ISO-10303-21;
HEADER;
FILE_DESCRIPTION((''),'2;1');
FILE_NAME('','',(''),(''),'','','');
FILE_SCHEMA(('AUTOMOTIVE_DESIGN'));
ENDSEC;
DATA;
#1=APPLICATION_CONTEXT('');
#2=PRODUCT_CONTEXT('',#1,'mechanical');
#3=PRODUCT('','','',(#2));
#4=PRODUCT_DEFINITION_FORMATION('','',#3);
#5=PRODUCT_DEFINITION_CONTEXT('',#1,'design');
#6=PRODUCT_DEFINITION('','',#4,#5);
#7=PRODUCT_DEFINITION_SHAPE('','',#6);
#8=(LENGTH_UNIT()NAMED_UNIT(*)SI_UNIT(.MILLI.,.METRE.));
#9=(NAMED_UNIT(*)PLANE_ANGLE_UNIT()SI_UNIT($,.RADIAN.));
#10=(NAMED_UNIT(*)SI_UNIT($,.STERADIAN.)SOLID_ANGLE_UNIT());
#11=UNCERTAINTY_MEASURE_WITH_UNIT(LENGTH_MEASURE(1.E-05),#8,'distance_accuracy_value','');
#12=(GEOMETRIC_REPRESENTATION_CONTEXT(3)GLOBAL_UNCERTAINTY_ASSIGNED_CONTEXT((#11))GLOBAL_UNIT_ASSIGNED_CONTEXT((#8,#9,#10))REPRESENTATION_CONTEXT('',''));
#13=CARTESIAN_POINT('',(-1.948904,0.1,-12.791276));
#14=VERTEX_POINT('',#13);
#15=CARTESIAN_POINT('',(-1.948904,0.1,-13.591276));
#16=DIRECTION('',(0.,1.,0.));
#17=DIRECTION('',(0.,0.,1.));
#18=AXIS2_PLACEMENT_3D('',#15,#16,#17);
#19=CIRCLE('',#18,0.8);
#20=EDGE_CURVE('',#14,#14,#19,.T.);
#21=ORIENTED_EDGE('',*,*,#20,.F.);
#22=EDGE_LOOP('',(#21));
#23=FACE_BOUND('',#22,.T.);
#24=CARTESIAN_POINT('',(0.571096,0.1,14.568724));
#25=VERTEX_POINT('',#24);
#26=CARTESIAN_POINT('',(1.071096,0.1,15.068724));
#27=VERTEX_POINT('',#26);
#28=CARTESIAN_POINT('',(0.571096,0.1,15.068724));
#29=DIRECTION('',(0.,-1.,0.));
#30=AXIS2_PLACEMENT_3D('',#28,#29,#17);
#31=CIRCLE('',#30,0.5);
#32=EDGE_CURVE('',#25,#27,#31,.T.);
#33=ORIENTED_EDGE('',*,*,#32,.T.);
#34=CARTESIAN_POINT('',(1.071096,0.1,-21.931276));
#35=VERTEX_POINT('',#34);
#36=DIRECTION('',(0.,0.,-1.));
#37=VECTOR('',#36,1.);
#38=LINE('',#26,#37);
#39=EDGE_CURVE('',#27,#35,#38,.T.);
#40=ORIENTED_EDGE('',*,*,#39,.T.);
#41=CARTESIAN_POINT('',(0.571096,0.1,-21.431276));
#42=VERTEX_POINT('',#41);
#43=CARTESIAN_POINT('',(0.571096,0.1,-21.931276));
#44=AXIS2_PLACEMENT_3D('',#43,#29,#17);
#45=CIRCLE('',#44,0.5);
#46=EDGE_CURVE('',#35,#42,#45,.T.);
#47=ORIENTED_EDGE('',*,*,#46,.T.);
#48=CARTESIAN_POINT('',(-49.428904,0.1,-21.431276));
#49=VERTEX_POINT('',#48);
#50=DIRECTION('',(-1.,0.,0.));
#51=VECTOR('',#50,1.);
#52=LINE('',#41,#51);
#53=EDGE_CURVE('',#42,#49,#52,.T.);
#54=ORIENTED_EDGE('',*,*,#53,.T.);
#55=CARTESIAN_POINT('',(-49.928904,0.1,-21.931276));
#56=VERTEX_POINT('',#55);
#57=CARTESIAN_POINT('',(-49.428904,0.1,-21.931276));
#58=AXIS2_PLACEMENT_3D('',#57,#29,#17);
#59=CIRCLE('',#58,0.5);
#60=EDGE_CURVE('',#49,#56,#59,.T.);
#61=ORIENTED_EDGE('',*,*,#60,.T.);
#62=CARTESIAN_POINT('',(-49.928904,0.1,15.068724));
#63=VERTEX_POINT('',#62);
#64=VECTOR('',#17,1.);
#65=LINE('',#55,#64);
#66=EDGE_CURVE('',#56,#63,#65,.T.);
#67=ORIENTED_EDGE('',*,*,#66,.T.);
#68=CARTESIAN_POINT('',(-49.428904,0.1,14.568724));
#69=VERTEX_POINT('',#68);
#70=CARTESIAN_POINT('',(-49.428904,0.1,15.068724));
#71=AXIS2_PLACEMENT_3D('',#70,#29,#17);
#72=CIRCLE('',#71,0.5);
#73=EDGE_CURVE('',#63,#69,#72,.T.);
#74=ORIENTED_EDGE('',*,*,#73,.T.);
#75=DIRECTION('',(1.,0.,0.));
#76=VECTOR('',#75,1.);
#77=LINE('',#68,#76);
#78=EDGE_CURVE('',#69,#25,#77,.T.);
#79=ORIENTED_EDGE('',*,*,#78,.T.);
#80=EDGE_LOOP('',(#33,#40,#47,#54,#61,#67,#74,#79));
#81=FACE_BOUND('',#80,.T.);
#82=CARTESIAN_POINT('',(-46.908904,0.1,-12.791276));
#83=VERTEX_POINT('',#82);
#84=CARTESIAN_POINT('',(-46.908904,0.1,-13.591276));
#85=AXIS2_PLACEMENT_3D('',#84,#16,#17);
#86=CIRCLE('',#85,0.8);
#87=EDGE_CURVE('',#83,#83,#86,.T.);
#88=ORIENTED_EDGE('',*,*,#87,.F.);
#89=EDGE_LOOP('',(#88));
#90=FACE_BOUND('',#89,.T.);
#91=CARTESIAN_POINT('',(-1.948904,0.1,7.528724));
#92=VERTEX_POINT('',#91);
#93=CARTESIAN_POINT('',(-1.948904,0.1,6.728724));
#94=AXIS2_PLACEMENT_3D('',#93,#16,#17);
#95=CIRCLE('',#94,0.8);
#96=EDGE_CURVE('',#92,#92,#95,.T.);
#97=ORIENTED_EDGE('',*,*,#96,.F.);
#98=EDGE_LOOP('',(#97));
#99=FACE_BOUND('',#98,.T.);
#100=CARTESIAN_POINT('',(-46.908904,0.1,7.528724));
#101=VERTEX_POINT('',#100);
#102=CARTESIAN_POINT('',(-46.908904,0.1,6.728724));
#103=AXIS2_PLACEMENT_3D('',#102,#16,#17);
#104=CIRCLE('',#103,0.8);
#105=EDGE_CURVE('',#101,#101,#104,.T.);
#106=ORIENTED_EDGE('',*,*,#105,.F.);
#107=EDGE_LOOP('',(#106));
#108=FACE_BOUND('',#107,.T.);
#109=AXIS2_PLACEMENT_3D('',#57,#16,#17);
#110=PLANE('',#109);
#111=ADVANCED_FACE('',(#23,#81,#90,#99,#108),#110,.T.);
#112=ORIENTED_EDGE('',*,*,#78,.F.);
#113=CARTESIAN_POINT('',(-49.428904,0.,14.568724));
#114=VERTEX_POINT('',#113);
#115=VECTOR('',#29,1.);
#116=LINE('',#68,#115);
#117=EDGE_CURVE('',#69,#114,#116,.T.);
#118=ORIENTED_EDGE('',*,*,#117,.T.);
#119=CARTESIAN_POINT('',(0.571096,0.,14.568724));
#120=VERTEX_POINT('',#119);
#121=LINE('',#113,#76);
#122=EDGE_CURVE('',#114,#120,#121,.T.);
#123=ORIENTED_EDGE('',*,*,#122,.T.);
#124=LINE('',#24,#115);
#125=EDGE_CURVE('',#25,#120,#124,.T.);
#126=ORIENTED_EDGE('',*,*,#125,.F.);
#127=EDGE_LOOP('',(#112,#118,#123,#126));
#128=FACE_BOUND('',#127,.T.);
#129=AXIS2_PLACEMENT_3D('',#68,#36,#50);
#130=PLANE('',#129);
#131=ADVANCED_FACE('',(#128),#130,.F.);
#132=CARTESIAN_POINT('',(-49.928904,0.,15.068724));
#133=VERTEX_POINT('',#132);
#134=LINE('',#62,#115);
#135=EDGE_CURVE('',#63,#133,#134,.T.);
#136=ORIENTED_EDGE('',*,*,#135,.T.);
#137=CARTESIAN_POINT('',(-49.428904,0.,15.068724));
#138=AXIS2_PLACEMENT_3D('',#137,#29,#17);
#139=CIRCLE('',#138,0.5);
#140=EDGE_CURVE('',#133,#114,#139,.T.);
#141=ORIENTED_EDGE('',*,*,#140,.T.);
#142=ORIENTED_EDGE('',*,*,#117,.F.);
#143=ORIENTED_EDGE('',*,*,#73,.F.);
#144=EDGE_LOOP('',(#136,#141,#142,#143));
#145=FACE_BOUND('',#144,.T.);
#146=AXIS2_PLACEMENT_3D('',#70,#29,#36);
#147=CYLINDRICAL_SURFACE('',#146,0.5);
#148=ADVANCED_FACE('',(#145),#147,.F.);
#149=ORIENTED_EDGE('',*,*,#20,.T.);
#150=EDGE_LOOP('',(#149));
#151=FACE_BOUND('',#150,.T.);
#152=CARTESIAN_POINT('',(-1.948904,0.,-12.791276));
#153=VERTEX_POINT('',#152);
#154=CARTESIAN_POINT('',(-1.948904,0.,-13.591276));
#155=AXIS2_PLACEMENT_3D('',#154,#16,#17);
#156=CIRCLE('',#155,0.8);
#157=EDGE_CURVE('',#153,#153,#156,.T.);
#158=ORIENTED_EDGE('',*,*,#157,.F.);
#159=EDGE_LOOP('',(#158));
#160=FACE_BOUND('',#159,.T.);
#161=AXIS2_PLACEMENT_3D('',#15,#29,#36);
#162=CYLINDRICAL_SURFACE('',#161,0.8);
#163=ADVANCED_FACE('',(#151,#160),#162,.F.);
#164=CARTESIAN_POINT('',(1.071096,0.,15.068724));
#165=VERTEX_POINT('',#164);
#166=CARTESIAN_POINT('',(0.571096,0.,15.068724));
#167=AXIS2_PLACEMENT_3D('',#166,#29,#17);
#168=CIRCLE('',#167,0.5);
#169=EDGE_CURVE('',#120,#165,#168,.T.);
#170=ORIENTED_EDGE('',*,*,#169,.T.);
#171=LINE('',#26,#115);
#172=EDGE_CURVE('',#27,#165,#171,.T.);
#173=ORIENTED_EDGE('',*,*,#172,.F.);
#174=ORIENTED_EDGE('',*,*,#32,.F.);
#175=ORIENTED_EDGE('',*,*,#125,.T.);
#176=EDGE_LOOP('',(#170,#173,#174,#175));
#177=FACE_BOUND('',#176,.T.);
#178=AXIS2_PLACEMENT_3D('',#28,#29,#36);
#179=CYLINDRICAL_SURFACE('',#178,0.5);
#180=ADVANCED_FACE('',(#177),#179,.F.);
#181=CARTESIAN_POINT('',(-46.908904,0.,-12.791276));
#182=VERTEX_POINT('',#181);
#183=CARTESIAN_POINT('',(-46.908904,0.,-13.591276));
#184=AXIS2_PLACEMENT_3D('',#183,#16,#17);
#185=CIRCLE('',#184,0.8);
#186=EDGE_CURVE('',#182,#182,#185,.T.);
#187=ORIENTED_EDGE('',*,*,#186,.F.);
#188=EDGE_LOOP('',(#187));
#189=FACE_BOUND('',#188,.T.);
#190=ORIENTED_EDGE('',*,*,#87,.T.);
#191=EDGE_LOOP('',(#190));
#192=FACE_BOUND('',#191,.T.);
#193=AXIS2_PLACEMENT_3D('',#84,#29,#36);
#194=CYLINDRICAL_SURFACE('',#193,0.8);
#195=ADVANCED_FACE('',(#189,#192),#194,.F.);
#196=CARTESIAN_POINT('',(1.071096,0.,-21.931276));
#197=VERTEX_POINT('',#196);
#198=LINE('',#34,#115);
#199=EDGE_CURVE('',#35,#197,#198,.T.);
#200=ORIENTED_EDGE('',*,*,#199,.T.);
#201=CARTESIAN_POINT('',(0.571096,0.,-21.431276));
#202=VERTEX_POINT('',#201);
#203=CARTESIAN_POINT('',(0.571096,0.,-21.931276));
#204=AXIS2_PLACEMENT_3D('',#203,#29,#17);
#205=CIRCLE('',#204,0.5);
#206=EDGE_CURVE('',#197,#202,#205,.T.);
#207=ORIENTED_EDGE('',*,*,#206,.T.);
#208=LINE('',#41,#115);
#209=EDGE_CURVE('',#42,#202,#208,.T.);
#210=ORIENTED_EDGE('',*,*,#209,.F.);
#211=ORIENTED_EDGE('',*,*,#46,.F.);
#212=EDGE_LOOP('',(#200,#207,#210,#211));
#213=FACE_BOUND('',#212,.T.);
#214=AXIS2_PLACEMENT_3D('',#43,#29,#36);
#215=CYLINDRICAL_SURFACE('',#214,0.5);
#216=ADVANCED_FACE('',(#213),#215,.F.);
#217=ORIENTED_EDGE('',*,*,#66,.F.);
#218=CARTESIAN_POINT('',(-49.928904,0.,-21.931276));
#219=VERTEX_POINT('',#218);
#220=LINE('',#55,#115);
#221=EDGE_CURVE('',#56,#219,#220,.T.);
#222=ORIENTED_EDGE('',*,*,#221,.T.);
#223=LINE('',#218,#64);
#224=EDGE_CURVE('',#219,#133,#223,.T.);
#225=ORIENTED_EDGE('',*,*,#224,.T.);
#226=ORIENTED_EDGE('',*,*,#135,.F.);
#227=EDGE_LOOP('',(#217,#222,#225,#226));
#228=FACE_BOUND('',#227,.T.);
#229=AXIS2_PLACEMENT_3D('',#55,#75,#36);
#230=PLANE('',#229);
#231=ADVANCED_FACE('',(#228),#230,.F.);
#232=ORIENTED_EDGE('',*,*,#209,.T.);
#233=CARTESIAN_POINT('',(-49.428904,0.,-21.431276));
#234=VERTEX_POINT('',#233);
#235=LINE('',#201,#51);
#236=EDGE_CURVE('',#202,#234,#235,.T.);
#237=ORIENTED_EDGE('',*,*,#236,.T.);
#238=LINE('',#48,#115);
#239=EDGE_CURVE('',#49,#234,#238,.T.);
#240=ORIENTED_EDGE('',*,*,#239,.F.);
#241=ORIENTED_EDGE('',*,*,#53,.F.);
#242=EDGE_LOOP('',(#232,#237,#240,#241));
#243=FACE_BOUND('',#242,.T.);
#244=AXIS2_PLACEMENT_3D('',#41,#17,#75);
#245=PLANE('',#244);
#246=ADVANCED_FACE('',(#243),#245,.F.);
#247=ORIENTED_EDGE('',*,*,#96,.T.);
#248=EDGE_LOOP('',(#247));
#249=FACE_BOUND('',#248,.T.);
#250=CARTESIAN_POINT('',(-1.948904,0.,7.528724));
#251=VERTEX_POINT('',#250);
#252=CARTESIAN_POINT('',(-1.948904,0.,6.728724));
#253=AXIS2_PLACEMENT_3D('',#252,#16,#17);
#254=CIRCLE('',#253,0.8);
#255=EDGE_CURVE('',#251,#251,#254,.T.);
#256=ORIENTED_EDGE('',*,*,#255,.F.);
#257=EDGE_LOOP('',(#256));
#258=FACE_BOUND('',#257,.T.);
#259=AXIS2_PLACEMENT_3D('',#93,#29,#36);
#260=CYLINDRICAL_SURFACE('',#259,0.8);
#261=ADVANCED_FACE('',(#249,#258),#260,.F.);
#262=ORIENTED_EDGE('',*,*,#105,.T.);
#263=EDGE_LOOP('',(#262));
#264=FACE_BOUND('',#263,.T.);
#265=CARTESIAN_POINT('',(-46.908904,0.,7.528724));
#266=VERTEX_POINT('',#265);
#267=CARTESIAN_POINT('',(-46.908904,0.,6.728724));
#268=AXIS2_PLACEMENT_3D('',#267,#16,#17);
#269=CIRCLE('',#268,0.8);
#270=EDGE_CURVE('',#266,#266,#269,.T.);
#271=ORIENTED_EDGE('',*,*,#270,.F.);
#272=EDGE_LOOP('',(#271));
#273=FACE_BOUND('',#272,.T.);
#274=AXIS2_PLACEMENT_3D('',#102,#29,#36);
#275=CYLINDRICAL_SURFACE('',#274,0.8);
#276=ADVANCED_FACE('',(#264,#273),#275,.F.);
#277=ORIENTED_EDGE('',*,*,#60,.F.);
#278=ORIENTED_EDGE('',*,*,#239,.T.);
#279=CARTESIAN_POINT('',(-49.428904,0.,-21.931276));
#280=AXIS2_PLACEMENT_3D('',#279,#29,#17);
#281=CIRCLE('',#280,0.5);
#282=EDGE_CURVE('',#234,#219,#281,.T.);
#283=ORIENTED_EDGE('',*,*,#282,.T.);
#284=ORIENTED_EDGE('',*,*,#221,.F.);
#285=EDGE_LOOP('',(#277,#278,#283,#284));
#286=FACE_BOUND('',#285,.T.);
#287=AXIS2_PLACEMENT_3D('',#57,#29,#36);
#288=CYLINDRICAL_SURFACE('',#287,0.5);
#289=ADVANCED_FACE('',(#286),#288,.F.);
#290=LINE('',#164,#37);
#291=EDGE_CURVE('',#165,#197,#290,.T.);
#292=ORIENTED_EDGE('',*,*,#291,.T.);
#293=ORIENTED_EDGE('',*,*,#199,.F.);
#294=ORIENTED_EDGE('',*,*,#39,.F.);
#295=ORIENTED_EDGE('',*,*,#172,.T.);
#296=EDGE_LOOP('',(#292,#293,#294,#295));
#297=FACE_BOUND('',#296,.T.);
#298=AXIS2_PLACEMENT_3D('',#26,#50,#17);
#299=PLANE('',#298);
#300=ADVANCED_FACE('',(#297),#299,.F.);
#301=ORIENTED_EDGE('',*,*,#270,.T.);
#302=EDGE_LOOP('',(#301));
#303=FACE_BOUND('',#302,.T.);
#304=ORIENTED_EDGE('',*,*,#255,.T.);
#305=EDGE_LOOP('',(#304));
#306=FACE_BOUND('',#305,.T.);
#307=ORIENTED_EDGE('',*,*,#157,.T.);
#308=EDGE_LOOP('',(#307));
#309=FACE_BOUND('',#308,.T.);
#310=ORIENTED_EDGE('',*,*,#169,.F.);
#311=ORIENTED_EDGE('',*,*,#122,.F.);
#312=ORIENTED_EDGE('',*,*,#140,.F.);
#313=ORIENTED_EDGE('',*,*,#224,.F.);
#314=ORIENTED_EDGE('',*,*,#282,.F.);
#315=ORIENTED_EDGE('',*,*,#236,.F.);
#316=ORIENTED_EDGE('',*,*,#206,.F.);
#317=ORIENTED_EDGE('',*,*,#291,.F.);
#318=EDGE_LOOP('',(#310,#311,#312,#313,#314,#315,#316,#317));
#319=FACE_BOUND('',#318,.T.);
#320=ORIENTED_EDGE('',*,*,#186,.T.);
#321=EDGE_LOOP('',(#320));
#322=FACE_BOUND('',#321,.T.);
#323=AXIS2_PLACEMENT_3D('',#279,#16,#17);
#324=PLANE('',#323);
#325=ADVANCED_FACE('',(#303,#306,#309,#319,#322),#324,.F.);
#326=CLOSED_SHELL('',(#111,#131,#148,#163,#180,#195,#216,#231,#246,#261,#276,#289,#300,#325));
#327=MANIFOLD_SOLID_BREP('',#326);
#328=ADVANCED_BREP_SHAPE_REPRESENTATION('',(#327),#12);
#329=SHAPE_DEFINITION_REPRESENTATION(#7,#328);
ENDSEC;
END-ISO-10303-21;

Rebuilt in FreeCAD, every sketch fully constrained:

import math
import FreeCAD as App
import Part
import Sketcher

V = App.Vector

doc = App.newDocument("Part")
body = doc.addObject("PartDesign::Body", "Body")

sketch1 = body.newObject("Sketcher::SketchObject", "Sketch")
sketch1.AttachmentSupport = (doc.getObject("XZ_Plane"), [""])
sketch1.MapMode = "FlatFace"
sketch1.addGeometry([
    Part.LineSegment(V(-49.93, -21.93, 0), V(-49.93, 15.07, 0)),
    Part.ArcOfCircle(Part.Circle(V(-49.43, 15.07, 0), V(0, 0, 1), 0.5), math.radians(-180), math.radians(-90)),
    Part.LineSegment(V(-49.43, 14.57, 0), V(0.57, 14.57, 0)),
    Part.ArcOfCircle(Part.Circle(V(0.57, 15.07, 0), V(0, 0, 1), 0.5), math.radians(-90), math.radians(0)),
    Part.LineSegment(V(1.07, 15.07, 0), V(1.07, -21.93, 0)),
    Part.ArcOfCircle(Part.Circle(V(0.57, -21.93, 0), V(0, 0, 1), 0.5), math.radians(0), math.radians(90)),
    Part.LineSegment(V(0.57, -21.43, 0), V(-49.43, -21.43, 0)),
    Part.ArcOfCircle(Part.Circle(V(-49.43, -21.93, 0), V(0, 0, 1), 0.5), math.radians(90), math.radians(180)),
    Part.Circle(V(-46.91, 6.73, 0), V(0, 0, 1), 0.8),
    Part.Circle(V(-1.95, 6.73, 0), V(0, 0, 1), 0.8),
    Part.Circle(V(-46.91, -13.59, 0), V(0, 0, 1), 0.8),
    Part.Circle(V(-1.95, -13.59, 0), V(0, 0, 1), 0.8),
], False)
sketch1.addConstraint([
    Sketcher.Constraint("Tangent", 0, 2, 1, 1),
    Sketcher.Constraint("Tangent", 1, 2, 2, 1),
    Sketcher.Constraint("Tangent", 2, 2, 3, 1),
    Sketcher.Constraint("Tangent", 3, 2, 4, 1),
    Sketcher.Constraint("Tangent", 4, 2, 5, 1),
    Sketcher.Constraint("Tangent", 5, 2, 6, 1),
    Sketcher.Constraint("Tangent", 6, 2, 7, 1),
    Sketcher.Constraint("Tangent", 7, 2, 0, 1),
    Sketcher.Constraint("Vertical", 0),
    Sketcher.Constraint("Horizontal", 2),
    Sketcher.Constraint("Vertical", 4),
    Sketcher.Constraint("Horizontal", 6),
    Sketcher.Constraint("Equal", 1, 3),
    Sketcher.Constraint("Equal", 3, 5),
    Sketcher.Constraint("Equal", 5, 7),
    Sketcher.Constraint("Equal", 8, 9),
    Sketcher.Constraint("Equal", 9, 10),
    Sketcher.Constraint("Equal", 10, 11),
    Sketcher.Constraint("Horizontal", 8, 3, 9, 3),
    Sketcher.Constraint("Horizontal", 10, 3, 11, 3),
    Sketcher.Constraint("Vertical", 8, 3, 10, 3),
    Sketcher.Constraint("Vertical", 9, 3, 11, 3),
    Sketcher.Constraint("Diameter", 8, 1.6),
    Sketcher.Constraint("Radius", 1, 0.5),
    Sketcher.Constraint("DistanceX", 2, 1, 2, 2, 50.0),
    Sketcher.Constraint("DistanceY", 0, 1, 0, 2, 37.0),
    Sketcher.Constraint("DistanceX", 1, 3, 8, 3, 2.52),
    Sketcher.Constraint("DistanceY", 8, 3, 1, 3, 8.34),
    Sketcher.Constraint("DistanceX", 9, 3, 3, 3, 2.52),
    Sketcher.Constraint("DistanceY", 7, 3, 10, 3, 8.34),
    Sketcher.Constraint("DistanceX", 1, 3, -1, 1, 49.428904),
    Sketcher.Constraint("DistanceY", -1, 1, 1, 3, 15.068724),
])
pad1 = body.newObject("PartDesign::Pad", "Pad")
pad1.Profile = sketch1
pad1.Length = 0.1
pad1.Reversed = True

doc.recompute()
